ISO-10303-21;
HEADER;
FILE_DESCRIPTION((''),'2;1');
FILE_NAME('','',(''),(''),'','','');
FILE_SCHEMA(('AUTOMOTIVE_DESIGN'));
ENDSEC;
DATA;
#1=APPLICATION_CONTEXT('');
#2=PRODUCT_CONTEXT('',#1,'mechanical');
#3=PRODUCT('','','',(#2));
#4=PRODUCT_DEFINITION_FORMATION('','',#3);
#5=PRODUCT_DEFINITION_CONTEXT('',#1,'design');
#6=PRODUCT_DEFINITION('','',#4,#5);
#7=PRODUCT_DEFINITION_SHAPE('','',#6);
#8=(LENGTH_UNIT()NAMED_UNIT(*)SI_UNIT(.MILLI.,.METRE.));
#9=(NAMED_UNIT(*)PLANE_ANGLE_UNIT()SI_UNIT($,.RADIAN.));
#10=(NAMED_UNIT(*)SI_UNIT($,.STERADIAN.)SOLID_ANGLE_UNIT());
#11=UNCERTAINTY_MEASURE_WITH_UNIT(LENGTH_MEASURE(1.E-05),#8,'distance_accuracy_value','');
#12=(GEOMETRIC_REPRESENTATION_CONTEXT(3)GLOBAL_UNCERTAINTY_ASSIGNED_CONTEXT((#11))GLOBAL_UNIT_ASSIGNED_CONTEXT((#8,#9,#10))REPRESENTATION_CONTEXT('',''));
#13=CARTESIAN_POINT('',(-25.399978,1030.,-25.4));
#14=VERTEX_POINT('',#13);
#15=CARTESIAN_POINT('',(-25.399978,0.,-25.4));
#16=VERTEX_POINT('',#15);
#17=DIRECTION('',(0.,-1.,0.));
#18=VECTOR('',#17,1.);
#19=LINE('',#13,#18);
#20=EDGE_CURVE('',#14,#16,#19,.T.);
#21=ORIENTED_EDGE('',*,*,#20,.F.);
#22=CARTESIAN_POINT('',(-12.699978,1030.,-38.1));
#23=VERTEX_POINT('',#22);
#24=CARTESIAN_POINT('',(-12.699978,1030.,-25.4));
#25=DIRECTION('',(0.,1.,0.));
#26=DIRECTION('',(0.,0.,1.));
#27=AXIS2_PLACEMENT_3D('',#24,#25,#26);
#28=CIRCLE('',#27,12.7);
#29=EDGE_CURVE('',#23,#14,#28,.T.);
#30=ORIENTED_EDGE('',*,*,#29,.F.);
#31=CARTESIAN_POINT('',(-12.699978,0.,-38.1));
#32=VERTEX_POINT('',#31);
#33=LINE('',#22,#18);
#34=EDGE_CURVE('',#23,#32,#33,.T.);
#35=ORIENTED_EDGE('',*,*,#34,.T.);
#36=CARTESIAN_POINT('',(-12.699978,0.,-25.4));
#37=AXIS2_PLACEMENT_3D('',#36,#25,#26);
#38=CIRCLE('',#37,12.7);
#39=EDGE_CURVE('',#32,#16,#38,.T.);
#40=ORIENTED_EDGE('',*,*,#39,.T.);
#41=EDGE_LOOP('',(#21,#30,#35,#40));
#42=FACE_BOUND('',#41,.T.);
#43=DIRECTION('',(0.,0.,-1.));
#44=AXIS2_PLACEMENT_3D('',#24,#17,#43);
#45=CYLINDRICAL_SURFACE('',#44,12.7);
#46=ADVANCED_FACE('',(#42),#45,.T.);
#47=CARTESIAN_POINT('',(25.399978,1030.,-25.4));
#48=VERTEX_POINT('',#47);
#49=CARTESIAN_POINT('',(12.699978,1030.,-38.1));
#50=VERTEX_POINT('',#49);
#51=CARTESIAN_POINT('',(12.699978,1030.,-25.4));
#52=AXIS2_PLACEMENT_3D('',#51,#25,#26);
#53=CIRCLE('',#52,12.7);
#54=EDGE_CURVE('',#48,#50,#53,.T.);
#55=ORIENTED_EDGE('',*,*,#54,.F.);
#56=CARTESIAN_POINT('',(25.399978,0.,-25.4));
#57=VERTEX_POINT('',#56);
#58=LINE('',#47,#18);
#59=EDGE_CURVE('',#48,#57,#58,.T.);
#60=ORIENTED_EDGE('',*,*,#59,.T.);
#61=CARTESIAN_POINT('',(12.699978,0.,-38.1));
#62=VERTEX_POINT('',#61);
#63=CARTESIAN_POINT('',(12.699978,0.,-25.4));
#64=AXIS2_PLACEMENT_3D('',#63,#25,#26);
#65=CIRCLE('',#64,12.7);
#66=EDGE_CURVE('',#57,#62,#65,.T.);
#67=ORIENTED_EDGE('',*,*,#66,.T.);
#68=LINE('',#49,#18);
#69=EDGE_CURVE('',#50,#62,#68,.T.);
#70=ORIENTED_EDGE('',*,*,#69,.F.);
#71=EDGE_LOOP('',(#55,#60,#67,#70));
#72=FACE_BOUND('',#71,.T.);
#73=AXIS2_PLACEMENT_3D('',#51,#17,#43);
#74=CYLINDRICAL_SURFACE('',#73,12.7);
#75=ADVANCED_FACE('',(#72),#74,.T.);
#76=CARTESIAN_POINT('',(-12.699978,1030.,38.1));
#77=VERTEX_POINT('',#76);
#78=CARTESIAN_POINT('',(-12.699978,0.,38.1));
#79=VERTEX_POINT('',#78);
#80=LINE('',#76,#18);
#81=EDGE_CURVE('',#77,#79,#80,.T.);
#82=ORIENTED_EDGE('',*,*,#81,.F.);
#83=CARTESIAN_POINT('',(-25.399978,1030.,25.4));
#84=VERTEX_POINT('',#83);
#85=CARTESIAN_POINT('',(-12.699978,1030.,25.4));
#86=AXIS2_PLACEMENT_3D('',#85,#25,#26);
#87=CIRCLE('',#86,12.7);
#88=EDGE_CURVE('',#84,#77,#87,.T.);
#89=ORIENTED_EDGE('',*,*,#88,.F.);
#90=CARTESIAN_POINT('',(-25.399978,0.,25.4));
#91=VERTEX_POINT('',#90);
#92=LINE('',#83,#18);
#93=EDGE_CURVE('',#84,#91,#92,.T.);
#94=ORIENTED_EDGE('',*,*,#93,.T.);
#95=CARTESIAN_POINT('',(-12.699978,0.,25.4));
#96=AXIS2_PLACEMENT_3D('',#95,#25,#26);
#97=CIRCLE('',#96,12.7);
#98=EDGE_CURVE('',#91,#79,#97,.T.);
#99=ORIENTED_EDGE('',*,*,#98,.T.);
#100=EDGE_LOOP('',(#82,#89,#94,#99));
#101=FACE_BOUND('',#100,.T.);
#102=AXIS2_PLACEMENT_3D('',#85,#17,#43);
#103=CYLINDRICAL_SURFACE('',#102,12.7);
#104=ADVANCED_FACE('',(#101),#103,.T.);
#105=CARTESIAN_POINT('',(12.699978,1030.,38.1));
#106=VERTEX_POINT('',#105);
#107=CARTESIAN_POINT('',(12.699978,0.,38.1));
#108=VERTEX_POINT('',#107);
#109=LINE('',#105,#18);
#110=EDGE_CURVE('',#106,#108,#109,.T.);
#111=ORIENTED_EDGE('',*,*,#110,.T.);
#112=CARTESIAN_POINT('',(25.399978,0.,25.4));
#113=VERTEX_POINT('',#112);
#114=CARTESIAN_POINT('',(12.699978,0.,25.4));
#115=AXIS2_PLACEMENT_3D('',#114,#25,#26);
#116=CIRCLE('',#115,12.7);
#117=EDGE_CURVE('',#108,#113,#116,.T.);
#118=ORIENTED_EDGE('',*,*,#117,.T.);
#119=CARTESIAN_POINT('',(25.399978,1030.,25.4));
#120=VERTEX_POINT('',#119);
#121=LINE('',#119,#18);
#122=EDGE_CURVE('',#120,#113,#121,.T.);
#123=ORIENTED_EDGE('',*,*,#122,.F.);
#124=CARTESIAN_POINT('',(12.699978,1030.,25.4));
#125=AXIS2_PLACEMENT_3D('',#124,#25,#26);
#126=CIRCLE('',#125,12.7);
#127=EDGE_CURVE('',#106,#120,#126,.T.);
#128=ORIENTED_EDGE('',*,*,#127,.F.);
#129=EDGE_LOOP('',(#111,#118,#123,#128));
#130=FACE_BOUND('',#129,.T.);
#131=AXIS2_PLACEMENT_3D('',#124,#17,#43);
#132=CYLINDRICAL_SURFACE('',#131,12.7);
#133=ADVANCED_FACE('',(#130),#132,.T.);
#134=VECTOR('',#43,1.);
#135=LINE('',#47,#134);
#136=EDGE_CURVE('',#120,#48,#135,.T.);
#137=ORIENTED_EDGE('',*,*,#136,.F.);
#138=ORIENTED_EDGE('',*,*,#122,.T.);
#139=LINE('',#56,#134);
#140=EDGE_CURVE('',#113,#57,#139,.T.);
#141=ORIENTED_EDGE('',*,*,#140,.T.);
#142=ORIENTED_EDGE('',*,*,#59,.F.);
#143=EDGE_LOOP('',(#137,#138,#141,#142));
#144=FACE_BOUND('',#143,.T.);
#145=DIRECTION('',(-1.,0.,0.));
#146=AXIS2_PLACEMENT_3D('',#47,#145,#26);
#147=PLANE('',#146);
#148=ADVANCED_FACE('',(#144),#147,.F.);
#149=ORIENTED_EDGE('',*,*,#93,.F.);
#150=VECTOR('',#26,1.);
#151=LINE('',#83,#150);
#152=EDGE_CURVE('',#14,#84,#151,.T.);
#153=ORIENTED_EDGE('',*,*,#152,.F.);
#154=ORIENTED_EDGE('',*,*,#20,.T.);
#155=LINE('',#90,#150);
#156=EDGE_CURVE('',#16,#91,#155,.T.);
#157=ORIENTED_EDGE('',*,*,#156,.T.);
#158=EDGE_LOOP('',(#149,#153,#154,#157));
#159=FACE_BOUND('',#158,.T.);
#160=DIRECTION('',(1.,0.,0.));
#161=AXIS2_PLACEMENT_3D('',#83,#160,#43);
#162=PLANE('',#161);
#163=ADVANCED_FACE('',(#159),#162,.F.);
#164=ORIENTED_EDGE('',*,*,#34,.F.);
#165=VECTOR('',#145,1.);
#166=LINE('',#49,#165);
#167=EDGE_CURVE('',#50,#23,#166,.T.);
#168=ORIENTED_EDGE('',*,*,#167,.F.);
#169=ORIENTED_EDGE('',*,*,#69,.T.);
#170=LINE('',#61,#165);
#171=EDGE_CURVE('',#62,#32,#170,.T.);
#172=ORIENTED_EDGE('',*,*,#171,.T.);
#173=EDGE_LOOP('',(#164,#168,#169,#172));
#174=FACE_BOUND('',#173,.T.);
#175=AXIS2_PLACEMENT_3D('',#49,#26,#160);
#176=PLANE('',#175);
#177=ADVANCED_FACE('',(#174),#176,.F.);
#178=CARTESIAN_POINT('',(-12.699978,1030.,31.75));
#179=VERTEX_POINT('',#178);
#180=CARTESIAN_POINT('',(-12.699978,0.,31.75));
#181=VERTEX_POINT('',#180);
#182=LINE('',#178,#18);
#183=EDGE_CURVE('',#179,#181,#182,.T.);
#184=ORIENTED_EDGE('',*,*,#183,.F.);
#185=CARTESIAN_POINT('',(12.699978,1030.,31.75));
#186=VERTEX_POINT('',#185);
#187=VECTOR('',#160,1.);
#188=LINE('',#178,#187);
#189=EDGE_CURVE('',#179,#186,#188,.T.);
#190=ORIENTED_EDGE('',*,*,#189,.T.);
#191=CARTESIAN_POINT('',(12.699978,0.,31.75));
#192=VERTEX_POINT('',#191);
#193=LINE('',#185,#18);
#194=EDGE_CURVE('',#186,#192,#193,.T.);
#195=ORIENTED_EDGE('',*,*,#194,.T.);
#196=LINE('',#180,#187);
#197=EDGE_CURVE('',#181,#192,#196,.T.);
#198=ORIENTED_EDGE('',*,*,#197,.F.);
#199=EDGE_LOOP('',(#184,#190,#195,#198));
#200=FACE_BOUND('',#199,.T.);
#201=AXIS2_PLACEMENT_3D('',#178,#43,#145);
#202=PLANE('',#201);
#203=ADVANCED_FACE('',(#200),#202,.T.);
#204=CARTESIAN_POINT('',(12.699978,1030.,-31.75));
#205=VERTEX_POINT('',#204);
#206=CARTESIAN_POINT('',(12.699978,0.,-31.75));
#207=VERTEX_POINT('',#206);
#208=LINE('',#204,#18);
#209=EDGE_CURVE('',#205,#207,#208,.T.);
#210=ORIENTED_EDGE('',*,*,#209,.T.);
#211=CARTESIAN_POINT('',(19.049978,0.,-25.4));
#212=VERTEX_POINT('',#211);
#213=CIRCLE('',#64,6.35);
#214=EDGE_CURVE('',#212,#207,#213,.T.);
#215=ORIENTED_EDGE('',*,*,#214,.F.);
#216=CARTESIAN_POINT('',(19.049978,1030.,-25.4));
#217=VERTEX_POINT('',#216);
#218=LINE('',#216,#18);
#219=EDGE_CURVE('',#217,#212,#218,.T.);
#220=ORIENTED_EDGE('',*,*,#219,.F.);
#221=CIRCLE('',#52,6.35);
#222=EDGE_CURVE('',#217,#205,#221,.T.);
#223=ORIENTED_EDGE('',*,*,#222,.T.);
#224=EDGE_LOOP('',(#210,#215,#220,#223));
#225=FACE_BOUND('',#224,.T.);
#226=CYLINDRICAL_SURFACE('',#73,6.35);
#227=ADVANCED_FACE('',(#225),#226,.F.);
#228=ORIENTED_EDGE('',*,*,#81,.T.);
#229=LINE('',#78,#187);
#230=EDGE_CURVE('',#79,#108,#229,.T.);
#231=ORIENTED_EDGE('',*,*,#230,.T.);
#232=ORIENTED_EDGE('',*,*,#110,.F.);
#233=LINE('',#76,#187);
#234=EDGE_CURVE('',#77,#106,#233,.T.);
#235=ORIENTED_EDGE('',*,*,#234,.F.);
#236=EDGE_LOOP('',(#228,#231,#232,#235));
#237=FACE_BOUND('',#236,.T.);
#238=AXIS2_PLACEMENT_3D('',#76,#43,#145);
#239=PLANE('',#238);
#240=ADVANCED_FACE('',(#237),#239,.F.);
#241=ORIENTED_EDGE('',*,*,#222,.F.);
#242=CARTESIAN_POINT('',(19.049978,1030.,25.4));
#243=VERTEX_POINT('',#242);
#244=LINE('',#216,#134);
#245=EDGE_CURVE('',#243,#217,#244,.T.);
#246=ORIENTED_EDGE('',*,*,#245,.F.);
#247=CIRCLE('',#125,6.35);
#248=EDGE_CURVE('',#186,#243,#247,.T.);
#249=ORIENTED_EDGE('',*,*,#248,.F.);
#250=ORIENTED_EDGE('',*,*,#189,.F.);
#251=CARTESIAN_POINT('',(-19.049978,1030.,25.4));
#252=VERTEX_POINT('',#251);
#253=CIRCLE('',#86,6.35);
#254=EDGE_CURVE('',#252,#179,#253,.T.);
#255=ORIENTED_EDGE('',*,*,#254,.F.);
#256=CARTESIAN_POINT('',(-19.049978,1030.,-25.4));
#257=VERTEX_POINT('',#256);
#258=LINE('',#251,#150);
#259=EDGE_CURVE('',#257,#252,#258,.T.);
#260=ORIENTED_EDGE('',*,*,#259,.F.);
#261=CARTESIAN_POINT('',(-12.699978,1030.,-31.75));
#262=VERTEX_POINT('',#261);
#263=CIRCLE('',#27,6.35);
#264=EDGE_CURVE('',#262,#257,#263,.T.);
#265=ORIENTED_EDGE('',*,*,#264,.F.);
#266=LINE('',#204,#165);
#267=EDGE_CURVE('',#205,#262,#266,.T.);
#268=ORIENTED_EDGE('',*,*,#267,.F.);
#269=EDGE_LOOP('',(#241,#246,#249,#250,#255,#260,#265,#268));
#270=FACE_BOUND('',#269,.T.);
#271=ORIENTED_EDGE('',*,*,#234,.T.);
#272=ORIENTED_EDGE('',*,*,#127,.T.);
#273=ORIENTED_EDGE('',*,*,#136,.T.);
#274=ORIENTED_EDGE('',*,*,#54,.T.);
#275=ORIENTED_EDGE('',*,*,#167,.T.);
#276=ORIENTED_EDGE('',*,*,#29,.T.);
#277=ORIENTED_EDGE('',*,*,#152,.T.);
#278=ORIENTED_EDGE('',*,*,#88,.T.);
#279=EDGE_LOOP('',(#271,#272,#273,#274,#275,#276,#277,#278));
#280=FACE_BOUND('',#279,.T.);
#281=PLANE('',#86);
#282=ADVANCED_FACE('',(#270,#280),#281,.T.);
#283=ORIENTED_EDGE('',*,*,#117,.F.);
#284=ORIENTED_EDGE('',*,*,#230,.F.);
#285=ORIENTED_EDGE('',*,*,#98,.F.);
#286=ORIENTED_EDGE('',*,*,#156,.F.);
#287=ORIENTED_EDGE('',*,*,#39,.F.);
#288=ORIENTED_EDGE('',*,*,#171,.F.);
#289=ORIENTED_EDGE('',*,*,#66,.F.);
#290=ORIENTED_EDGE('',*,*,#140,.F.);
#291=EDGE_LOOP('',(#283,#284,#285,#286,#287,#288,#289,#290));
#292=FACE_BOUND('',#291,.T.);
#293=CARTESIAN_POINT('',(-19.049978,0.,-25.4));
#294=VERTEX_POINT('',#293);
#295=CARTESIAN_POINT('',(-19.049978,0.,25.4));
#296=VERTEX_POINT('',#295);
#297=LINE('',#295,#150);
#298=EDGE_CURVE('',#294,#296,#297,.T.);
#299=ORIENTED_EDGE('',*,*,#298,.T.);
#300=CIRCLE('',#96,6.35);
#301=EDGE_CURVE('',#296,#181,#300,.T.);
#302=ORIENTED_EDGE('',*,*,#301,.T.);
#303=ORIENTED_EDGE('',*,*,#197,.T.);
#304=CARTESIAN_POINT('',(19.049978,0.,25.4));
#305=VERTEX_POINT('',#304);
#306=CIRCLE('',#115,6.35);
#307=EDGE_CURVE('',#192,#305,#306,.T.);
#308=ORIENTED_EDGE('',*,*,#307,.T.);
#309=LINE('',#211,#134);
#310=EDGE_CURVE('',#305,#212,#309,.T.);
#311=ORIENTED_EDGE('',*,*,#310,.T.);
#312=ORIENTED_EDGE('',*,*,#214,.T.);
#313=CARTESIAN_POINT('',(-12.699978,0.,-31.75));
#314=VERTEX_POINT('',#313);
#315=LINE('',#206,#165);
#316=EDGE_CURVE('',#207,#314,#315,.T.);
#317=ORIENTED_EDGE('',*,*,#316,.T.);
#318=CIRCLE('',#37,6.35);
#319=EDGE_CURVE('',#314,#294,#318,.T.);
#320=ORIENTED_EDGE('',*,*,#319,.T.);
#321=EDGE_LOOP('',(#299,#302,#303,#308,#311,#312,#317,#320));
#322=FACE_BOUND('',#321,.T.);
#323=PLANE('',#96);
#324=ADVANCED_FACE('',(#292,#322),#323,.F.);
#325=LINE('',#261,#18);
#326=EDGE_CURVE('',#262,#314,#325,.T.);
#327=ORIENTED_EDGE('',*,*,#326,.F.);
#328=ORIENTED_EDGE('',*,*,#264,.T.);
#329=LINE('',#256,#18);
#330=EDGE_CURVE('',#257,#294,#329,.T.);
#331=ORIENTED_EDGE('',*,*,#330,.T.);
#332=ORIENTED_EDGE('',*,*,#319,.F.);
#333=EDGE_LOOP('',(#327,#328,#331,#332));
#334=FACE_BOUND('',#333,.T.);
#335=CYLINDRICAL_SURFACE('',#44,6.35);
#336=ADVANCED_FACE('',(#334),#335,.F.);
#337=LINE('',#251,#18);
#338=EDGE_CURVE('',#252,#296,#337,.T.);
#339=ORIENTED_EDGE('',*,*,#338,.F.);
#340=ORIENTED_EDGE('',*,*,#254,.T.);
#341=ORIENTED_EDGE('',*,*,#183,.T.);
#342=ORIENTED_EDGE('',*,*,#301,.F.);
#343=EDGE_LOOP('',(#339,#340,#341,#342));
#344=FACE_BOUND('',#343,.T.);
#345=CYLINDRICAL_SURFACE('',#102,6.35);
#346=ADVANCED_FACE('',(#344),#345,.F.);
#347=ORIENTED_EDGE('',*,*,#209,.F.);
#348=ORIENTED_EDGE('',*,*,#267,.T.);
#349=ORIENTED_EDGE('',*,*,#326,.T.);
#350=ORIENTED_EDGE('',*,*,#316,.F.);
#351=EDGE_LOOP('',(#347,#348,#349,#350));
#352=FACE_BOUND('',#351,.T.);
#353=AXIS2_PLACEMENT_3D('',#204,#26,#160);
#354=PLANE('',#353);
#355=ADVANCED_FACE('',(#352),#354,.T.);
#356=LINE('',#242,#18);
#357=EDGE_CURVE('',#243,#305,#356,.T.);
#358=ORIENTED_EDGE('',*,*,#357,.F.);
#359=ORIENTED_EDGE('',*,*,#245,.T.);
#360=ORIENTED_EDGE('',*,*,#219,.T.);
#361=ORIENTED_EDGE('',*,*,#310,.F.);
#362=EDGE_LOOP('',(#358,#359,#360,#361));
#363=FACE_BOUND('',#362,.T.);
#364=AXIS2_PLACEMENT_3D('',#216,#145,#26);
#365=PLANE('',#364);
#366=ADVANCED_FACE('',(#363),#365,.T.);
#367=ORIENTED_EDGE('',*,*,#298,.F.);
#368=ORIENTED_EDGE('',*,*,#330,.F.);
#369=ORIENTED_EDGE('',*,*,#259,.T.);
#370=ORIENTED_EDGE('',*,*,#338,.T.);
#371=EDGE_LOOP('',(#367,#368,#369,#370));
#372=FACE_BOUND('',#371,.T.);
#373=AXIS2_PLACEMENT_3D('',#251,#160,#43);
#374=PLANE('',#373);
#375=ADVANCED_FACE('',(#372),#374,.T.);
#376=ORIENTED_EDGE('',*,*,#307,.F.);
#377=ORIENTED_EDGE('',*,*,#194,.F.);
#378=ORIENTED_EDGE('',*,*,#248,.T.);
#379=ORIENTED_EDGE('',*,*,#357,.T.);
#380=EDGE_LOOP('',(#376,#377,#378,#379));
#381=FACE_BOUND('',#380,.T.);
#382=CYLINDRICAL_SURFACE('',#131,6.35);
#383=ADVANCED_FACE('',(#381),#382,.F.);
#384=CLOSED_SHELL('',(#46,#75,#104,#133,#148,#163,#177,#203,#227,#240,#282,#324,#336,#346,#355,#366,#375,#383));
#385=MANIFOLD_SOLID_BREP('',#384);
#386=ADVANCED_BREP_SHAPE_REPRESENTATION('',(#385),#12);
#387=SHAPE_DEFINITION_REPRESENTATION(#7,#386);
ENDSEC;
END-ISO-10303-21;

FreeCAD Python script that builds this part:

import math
import FreeCAD as App
import Part
import Sketcher
Q = App.Units.Quantity

doc = App.newDocument("Part")
body = doc.addObject("PartDesign::Body", "Body")

# Sketch on XZ plane
sketch1 = doc.addObject("Sketcher::SketchObject", "Sketch")
body.addObject(sketch1)
sketch1.AttachmentSupport = (doc.XZ_Plane, [""])
sketch1.MapMode = "FlatFace"
sketch1.addGeometry(Part.LineSegment(App.Vector(13, -38, 0), App.Vector(-13, -38, 0)), False)
sketch1.addGeometry(Part.ArcOfCircle(Part.Circle(App.Vector(-13, -25, 0), App.Vector(0, 0, 1), 13), math.radians(180), math.radians(270)), False)
sketch1.addGeometry(Part.LineSegment(App.Vector(-25, -25, 0), App.Vector(-25, 25, 0)), False)
sketch1.addGeometry(Part.ArcOfCircle(Part.Circle(App.Vector(-13, 25, 0), App.Vector(0, 0, 1), 13), math.radians(90), math.radians(180)), False)
sketch1.addGeometry(Part.LineSegment(App.Vector(-13, 38, 0), App.Vector(13, 38, 0)), False)
sketch1.addGeometry(Part.ArcOfCircle(Part.Circle(App.Vector(13, 25, 0), App.Vector(0, 0, 1), 13), math.radians(0), math.radians(90)), False)
sketch1.addGeometry(Part.LineSegment(App.Vector(25, 25, 0), App.Vector(25, -25, 0)), False)
sketch1.addGeometry(Part.ArcOfCircle(Part.Circle(App.Vector(13, -25, 0), App.Vector(0, 0, 1), 13), math.radians(-90), math.radians(0)), False)
sketch1.addGeometry(Part.LineSegment(App.Vector(-13, -32, 0), App.Vector(13, -32, 0)), False)
sketch1.addGeometry(Part.ArcOfCircle(Part.Circle(App.Vector(13, -25, 0), App.Vector(0, 0, 1), 6), math.radians(-90), math.radians(0)), False)
sketch1.addGeometry(Part.LineSegment(App.Vector(19, -25, 0), App.Vector(19, 25, 0)), False)
sketch1.addGeometry(Part.ArcOfCircle(Part.Circle(App.Vector(13, 25, 0), App.Vector(0, 0, 1), 6), math.radians(0), math.radians(90)), False)
sketch1.addGeometry(Part.LineSegment(App.Vector(13, 32, 0), App.Vector(-13, 32, 0)), False)
sketch1.addGeometry(Part.ArcOfCircle(Part.Circle(App.Vector(-13, 25, 0), App.Vector(0, 0, 1), 6), math.radians(90), math.radians(180)), False)
sketch1.addGeometry(Part.LineSegment(App.Vector(-19, 25, 0), App.Vector(-19, -25, 0)), False)
sketch1.addGeometry(Part.ArcOfCircle(Part.Circle(App.Vector(-13, -25, 0), App.Vector(0, 0, 1), 6), math.radians(180), math.radians(270)), False)
sketch1.addConstraint(Sketcher.Constraint("Tangent", 0, 2, 1, 2))
sketch1.addConstraint(Sketcher.Constraint("Tangent", 1, 1, 2, 1))
sketch1.addConstraint(Sketcher.Constraint("Tangent", 2, 2, 3, 2))
sketch1.addConstraint(Sketcher.Constraint("Tangent", 3, 1, 4, 1))
sketch1.addConstraint(Sketcher.Constraint("Tangent", 4, 2, 5, 2))
sketch1.addConstraint(Sketcher.Constraint("Tangent", 5, 1, 6, 1))
sketch1.addConstraint(Sketcher.Constraint("Tangent", 6, 2, 7, 2))
sketch1.addConstraint(Sketcher.Constraint("Tangent", 7, 1, 0, 1))
sketch1.addConstraint(Sketcher.Constraint("Tangent", 8, 2, 9, 1))
sketch1.addConstraint(Sketcher.Constraint("Tangent", 9, 2, 10, 1))
sketch1.addConstraint(Sketcher.Constraint("Tangent", 10, 2, 11, 1))
sketch1.addConstraint(Sketcher.Constraint("Tangent", 11, 2, 12, 1))
sketch1.addConstraint(Sketcher.Constraint("Tangent", 12, 2, 13, 1))
sketch1.addConstraint(Sketcher.Constraint("Tangent", 13, 2, 14, 1))
sketch1.addConstraint(Sketcher.Constraint("Tangent", 14, 2, 15, 1))
sketch1.addConstraint(Sketcher.Constraint("Tangent", 15, 2, 8, 1))
sketch1.addConstraint(Sketcher.Constraint("Horizontal", 0))
sketch1.addConstraint(Sketcher.Constraint("Vertical", 2))
sketch1.addConstraint(Sketcher.Constraint("Horizontal", 4))
sketch1.addConstraint(Sketcher.Constraint("Vertical", 6))
sketch1.addConstraint(Sketcher.Constraint("Horizontal", 8))
sketch1.addConstraint(Sketcher.Constraint("Vertical", 10))
sketch1.addConstraint(Sketcher.Constraint("Horizontal", 12))
sketch1.addConstraint(Sketcher.Constraint("Vertical", 14))
sketch1.addConstraint(Sketcher.Constraint("Coincident", 9, 3, 7, 3))
sketch1.addConstraint(Sketcher.Constraint("Coincident", 11, 3, 5, 3))
sketch1.addConstraint(Sketcher.Constraint("Coincident", 13, 3, 3, 3))
sketch1.addConstraint(Sketcher.Constraint("Equal", 1, 3))
sketch1.addConstraint(Sketcher.Constraint("Equal", 3, 5))
sketch1.addConstraint(Sketcher.Constraint("Equal", 5, 7))
sketch1.addConstraint(Sketcher.Constraint("Equal", 13, 15))
sketch1.addConstraint(Sketcher.Constraint("Symmetric", 1, 3, 5, 3, -1, 1))
sketch1.addConstraint(Sketcher.Constraint("Radius", 1, Q("0.5 in")))
sketch1.addConstraint(Sketcher.Constraint("DistanceY", 2, 1, 2, 2, Q("2 in")))
sketch1.addConstraint(Sketcher.Constraint("Radius", 9, Q("0.25 in")))
sketch1.addConstraint(Sketcher.Constraint("DistanceX", 0, 2, 0, 1, 25.399956))
pad1 = doc.addObject("PartDesign::Pad", "Pad")
body.addObject(pad1)
pad1.Profile = sketch1
pad1.Length = 1030
pad1.Reversed = True

doc.recompute()
